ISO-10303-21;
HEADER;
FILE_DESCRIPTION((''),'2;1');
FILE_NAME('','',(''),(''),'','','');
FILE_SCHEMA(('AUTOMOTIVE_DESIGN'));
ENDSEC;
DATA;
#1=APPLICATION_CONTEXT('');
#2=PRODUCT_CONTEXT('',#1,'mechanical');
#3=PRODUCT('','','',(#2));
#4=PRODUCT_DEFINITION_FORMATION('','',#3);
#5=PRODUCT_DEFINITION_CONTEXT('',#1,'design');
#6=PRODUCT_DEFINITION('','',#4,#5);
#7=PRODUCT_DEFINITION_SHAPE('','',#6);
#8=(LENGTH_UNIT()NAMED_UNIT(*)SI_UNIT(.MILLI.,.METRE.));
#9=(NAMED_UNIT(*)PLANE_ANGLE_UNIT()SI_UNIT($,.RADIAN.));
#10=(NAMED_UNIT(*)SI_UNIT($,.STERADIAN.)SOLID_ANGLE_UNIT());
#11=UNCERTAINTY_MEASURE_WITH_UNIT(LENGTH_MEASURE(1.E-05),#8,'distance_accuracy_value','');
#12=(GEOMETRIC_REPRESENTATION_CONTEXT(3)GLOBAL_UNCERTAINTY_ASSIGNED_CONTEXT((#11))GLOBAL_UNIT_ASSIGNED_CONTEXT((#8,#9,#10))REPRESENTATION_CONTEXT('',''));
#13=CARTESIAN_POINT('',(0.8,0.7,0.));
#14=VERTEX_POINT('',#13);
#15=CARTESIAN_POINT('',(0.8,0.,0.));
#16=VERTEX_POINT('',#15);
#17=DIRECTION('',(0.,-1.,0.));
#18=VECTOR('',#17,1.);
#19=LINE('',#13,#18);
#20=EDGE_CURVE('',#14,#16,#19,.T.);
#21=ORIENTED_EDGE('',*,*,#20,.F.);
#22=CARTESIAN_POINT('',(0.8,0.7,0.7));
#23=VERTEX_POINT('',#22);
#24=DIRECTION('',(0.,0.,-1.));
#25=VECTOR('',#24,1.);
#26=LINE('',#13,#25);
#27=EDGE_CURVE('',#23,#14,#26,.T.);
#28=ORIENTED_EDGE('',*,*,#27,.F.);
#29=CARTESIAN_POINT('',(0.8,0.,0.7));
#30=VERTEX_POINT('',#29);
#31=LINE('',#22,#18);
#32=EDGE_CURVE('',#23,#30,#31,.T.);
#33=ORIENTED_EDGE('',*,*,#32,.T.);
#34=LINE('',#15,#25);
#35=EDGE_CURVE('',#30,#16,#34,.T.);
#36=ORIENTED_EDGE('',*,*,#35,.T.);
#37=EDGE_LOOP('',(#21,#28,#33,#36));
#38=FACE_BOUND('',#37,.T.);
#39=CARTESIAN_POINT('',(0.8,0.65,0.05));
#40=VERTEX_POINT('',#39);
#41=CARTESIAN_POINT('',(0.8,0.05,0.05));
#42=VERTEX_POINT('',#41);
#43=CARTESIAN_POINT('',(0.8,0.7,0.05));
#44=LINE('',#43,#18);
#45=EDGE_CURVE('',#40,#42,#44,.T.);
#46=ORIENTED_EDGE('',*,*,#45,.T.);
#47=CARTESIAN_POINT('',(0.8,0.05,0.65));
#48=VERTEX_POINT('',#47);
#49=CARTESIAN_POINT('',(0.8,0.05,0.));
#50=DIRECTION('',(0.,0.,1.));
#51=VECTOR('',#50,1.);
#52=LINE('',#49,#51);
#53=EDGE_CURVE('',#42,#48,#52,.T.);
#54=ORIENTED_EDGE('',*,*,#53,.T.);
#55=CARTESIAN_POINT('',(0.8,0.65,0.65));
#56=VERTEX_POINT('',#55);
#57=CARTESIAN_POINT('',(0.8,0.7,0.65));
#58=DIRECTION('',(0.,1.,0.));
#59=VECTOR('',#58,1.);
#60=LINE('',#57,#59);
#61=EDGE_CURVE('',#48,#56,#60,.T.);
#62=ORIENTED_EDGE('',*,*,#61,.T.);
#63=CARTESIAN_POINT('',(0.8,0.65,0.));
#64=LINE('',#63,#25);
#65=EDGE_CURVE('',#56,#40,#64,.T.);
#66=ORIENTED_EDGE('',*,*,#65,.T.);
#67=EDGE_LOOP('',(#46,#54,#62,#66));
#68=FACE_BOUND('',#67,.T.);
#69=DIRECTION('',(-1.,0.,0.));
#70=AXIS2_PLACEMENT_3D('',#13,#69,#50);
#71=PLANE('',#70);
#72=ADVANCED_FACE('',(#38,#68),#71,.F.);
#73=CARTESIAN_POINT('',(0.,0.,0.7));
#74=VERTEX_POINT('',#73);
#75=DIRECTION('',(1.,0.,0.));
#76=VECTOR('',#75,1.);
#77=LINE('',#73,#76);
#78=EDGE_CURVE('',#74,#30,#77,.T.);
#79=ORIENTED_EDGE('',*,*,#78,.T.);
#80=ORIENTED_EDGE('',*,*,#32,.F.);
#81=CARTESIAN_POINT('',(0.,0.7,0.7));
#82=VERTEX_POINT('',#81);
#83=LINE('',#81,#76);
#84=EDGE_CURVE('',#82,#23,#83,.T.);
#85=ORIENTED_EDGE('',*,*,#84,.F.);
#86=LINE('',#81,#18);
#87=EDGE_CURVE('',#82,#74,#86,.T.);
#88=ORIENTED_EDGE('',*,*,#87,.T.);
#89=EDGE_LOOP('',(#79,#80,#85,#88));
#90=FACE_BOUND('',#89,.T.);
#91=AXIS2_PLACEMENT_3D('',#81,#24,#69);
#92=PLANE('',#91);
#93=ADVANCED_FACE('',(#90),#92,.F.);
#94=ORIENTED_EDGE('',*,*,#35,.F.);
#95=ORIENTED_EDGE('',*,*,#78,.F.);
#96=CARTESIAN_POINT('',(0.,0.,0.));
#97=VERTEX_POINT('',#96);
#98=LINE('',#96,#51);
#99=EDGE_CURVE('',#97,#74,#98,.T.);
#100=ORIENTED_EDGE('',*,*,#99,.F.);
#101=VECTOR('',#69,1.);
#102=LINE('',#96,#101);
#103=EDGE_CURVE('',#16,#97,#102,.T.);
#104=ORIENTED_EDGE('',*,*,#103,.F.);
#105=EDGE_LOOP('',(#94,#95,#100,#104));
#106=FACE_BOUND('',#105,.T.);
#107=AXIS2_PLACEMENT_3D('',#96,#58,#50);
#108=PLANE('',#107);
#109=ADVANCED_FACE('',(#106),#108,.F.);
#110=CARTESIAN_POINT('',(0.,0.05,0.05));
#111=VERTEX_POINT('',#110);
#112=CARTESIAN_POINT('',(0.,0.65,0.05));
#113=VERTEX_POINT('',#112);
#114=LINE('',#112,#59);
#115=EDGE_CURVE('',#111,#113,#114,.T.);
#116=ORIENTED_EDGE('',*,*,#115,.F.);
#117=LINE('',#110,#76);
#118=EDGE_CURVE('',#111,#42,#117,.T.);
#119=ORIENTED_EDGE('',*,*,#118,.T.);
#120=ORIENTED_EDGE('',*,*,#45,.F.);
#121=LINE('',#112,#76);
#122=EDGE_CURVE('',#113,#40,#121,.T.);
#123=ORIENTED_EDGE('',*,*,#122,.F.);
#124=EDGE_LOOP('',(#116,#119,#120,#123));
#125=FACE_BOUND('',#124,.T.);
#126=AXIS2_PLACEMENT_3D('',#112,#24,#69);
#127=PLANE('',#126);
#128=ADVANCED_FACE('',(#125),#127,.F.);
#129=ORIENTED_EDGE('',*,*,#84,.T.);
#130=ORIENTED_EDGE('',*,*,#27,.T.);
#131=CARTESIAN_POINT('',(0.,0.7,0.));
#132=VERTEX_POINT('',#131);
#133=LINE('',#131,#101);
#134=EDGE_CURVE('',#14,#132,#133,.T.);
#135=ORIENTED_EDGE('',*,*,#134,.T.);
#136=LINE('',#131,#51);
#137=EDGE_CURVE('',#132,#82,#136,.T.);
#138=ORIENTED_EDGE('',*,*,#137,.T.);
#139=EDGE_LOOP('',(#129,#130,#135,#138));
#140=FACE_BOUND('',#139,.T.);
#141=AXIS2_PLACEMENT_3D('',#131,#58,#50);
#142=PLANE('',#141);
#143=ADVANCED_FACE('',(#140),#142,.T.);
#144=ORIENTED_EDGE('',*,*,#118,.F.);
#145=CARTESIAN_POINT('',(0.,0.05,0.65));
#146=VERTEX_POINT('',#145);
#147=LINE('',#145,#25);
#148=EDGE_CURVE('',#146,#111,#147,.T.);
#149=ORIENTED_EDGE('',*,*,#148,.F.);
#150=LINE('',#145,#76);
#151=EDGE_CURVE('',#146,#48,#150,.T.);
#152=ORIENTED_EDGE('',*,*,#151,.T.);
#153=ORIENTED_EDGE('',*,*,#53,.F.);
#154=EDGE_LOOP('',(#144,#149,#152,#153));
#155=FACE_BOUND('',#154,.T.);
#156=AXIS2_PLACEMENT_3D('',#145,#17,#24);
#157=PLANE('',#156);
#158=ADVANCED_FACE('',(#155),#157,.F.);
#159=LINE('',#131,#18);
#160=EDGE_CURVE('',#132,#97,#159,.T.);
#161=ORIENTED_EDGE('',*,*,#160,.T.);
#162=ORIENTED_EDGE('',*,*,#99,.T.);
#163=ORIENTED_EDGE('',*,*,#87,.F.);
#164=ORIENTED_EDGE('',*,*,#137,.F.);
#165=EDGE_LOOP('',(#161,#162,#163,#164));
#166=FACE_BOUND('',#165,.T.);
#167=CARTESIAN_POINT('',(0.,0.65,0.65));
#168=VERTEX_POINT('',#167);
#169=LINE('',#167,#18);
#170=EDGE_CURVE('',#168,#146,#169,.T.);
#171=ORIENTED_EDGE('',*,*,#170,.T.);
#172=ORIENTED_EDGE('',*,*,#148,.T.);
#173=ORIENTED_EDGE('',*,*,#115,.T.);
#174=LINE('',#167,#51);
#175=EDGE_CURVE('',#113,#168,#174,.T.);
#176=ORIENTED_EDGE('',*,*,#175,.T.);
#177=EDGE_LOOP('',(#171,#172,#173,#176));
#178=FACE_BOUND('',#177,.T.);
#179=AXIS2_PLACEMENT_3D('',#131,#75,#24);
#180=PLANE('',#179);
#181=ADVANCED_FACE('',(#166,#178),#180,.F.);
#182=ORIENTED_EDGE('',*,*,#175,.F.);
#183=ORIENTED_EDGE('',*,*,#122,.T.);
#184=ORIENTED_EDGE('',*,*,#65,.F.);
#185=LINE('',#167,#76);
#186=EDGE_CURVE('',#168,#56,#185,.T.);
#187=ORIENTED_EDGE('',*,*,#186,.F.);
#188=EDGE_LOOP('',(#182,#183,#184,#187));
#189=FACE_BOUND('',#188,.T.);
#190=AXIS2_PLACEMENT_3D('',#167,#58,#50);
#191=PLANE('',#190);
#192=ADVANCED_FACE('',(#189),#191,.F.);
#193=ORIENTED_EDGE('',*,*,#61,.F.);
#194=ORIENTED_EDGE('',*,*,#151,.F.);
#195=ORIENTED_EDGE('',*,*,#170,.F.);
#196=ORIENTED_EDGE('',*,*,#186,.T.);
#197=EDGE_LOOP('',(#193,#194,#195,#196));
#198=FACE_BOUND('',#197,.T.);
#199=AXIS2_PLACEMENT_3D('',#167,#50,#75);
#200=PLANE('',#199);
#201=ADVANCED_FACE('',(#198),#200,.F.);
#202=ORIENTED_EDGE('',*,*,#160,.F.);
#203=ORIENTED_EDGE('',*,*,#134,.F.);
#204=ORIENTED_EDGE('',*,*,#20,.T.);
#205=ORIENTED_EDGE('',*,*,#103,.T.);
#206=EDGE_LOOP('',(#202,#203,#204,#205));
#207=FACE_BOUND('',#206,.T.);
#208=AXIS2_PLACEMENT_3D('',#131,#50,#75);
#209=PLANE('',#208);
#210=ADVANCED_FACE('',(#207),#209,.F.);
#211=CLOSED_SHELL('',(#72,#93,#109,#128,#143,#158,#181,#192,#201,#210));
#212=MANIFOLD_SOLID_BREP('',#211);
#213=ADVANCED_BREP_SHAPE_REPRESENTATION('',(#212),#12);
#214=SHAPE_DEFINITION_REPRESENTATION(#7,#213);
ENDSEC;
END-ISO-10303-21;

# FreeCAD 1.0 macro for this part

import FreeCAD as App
import Part
import Sketcher

doc = App.newDocument("Part")
params = doc.addObject("Spreadsheet::Sheet", "Params")
for row, (alias, value) in enumerate([
    ("sketch1_width", "0.8 mm"),
    ("sketch1_height", "0.7 mm"),
    ("pad1_length", "0.7 mm"),
    ("sketch2_width", "0.6 mm"),
], start=1):
    params.set(f"A{row}", alias)
    params.set(f"B{row}", "=" + value)
    params.setAlias(f"B{row}", alias)

body = doc.addObject("PartDesign::Body", "Body")

# Sketch on XZ plane
sketch1 = body.newObject("Sketcher::SketchObject", "Sketch")
sketch1.AttachmentSupport = (doc.getObject("XZ_Plane"), [""])
sketch1.MapMode = "FlatFace"
sketch1.addGeometry([
    Part.LineSegment(App.Vector(0, 0, 0), App.Vector(0, 0.7, 0)),
    Part.LineSegment(App.Vector(0, 0.7, 0), App.Vector(0.8, 0.7, 0)),
    Part.LineSegment(App.Vector(0.8, 0.7, 0), App.Vector(0.8, 0, 0)),
    Part.LineSegment(App.Vector(0.8, 0, 0), App.Vector(0, 0, 0)),
], False)
sketch1.addConstraint([
    Sketcher.Constraint("Coincident", 0, 2, 1, 1),
    Sketcher.Constraint("Coincident", 1, 2, 2, 1),
    Sketcher.Constraint("Coincident", 2, 2, 3, 1),
    Sketcher.Constraint("Coincident", 3, 2, 0, 1),
    Sketcher.Constraint("Vertical", 0),
    Sketcher.Constraint("Horizontal", 1),
    Sketcher.Constraint("Vertical", 2),
    Sketcher.Constraint("Horizontal", 3),
    Sketcher.Constraint("Coincident", 3, 2, -1, 1),
    Sketcher.Constraint("DistanceX", 1, 1, 1, 2, 0.8),
    Sketcher.Constraint("DistanceY", 0, 1, 0, 2, 0.7),
])
sketch1.setExpression("Constraints[9]", "Params.sketch1_width")
sketch1.setExpression("Constraints[10]", "Params.sketch1_height")
pad1 = body.newObject("PartDesign::Pad", "Pad")
pad1.Profile = sketch1
pad1.setExpression("Length", "Params.pad1_length")
pad1.Reversed = True

# Sketch on YZ plane
sketch2 = body.newObject("Sketcher::SketchObject", "Sketch001")
sketch2.AttachmentSupport = (doc.getObject("YZ_Plane"), [""])
sketch2.MapMode = "FlatFace"
sketch2.AttachmentOffset = App.Placement(App.Vector(0, 0, 0.8), App.Rotation())
sketch2.addGeometry([
    Part.LineSegment(App.Vector(0.7, 0.7, 0), App.Vector(0.1, 0.7, 0)),
    Part.LineSegment(App.Vector(0.1, 0.7, 0), App.Vector(0.1, 0.1, 0)),
    Part.LineSegment(App.Vector(0.1, 0.1, 0), App.Vector(0.7, 0.1, 0)),
    Part.LineSegment(App.Vector(0.7, 0.1, 0), App.Vector(0.7, 0.7, 0)),
], False)
sketch2.addConstraint([
    Sketcher.Constraint("Coincident", 0, 2, 1, 1),
    Sketcher.Constraint("Coincident", 1, 2, 2, 1),
    Sketcher.Constraint("Coincident", 2, 2, 3, 1),
    Sketcher.Constraint("Coincident", 3, 2, 0, 1),
    Sketcher.Constraint("Horizontal", 0),
    Sketcher.Constraint("Vertical", 1),
    Sketcher.Constraint("Horizontal", 2),
    Sketcher.Constraint("Vertical", 3),
    Sketcher.Constraint("Equal", 2, 1),
    Sketcher.Constraint("DistanceX", 0, 2, 0, 1, 0.6),
    Sketcher.Constraint("DistanceX", -1, 1, 0, 2, 0.05),
    Sketcher.Constraint("DistanceY", -1, 1, 0, 2, 0.65),
])
sketch2.setExpression("Constraints[9]", "Params.sketch2_width")
pocket1 = body.newObject("PartDesign::Pocket", "Pocket")
pocket1.Profile = sketch2
pocket1.Type = "ThroughAll"
pocket1.Midplane = True

doc.recompute()
